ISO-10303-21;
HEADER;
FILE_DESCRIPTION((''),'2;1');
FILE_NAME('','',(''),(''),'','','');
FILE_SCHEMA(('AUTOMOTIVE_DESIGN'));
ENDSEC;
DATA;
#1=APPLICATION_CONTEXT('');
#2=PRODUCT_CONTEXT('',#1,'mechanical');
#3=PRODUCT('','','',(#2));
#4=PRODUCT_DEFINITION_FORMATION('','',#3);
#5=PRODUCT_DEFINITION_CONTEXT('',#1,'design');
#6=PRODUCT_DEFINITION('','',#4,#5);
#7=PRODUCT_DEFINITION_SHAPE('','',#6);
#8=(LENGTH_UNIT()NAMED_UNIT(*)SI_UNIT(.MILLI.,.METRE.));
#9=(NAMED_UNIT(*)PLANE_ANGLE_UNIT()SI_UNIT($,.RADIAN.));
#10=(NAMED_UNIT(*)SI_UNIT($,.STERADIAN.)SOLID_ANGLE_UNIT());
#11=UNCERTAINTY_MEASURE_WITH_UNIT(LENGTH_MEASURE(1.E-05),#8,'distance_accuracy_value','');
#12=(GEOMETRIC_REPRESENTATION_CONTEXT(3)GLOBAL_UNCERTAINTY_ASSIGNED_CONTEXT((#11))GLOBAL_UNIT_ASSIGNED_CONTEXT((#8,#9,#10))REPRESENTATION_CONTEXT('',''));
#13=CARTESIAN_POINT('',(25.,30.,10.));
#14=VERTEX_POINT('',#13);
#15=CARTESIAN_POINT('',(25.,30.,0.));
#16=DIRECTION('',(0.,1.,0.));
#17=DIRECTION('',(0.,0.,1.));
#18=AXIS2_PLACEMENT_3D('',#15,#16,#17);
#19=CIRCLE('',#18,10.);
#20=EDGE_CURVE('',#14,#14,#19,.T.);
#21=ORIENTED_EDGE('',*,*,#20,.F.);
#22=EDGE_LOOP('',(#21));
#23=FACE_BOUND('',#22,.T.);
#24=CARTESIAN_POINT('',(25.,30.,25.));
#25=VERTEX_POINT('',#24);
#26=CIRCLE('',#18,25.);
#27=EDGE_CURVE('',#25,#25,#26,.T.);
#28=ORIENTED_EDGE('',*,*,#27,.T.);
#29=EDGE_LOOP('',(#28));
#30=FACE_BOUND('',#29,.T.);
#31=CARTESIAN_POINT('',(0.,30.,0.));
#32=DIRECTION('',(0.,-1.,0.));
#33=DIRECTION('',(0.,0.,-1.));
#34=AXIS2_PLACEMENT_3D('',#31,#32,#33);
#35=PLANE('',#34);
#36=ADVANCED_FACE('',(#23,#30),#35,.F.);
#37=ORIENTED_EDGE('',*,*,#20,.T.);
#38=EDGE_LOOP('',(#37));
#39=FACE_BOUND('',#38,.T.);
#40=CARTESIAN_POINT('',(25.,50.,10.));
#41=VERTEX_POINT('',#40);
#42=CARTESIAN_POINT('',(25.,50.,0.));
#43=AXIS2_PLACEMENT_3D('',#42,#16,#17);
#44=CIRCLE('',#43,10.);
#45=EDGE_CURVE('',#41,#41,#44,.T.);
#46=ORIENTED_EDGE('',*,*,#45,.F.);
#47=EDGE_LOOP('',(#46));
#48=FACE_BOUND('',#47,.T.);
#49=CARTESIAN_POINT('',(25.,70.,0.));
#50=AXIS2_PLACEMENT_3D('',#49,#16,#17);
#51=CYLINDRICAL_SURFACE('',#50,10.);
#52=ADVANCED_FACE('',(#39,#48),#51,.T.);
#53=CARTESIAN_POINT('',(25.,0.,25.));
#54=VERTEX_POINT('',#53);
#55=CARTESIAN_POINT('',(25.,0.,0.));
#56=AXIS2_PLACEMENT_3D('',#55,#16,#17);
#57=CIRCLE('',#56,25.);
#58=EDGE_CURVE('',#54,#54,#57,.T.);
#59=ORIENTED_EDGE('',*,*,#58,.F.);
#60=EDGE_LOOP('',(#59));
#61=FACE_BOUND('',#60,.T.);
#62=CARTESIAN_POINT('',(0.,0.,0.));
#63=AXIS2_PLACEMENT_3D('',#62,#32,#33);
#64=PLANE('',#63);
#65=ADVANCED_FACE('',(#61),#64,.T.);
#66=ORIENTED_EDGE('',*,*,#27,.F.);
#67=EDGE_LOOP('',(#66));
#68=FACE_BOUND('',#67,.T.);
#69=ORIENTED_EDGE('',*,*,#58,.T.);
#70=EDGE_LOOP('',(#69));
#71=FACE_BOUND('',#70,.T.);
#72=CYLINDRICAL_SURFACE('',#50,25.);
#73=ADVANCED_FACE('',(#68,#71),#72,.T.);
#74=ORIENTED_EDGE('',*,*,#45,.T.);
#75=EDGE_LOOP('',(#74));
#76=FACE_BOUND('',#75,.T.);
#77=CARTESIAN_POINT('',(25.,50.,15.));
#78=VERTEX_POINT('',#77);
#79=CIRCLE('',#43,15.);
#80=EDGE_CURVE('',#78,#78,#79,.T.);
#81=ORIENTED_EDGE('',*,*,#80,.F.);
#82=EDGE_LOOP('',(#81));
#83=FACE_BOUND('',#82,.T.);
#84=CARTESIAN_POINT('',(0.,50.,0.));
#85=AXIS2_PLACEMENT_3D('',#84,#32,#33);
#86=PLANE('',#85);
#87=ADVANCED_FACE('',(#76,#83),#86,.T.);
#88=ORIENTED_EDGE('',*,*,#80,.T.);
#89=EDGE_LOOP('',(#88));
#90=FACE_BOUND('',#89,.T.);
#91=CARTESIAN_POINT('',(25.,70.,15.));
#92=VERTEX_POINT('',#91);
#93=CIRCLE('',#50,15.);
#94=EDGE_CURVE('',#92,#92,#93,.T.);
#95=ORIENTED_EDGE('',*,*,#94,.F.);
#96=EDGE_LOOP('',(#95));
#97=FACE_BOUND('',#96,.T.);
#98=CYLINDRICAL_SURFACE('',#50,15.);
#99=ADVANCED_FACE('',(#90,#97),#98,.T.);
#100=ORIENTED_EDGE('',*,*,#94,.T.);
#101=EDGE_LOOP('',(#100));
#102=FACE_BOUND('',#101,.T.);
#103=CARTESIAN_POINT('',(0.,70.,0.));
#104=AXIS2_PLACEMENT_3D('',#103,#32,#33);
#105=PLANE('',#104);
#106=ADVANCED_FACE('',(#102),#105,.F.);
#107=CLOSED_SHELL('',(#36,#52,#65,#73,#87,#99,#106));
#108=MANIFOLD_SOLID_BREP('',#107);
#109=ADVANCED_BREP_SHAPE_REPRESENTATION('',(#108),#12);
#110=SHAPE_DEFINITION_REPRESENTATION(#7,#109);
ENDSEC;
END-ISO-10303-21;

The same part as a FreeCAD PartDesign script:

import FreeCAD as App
import Part
import Sketcher

V = App.Vector
Q = App.Units.Quantity


def add_polygon(sketch, points):
    """Adds a closed chain of lines whose ends are joined by coincident constraints."""
    first, n = sketch.GeometryCount, len(points)
    for a, b in zip(points, points[1:] + points[:1]):
        sketch.addGeometry(Part.LineSegment(App.Vector(*a, 0), App.Vector(*b, 0)), False)
    for i in range(n):
        sketch.addConstraint(Sketcher.Constraint("Coincident", first + i, 2, first + (i + 1) % n, 1))

doc = App.newDocument("Part")
body = doc.addObject("PartDesign::Body", "Body")

sketch1 = doc.addObject("Sketcher::SketchObject", "Sketch")
body.addObject(sketch1)
sketch1.AttachmentSupport = (doc.XY_Plane, [""])
sketch1.MapMode = "FlatFace"
add_polygon(sketch1, [(0, 0), (25, 0), (25, 70), (10, 70), (10, 50), (15, 50), (15, 30), (0, 30)])
sketch1.addGeometry(Part.LineSegment(V(25, 70, 0), V(25, 0, 0)), True)
sketch1.addConstraint(Sketcher.Constraint("Horizontal", 0))
sketch1.addConstraint(Sketcher.Constraint("Vertical", 1))
sketch1.addConstraint(Sketcher.Constraint("Horizontal", 2))
sketch1.addConstraint(Sketcher.Constraint("Vertical", 3))
sketch1.addConstraint(Sketcher.Constraint("Horizontal", 4))
sketch1.addConstraint(Sketcher.Constraint("Vertical", 5))
sketch1.addConstraint(Sketcher.Constraint("Horizontal", 6))
sketch1.addConstraint(Sketcher.Constraint("Vertical", 7))
sketch1.addConstraint(Sketcher.Constraint("Vertical", 8))
sketch1.addConstraint(Sketcher.Constraint("Coincident", 7, 2, -1, 1))
sketch1.addConstraint(Sketcher.Constraint("Coincident", 8, 1, 1, 2))
sketch1.addConstraint(Sketcher.Constraint("PointOnObject", 8, 2, -1))
sketch1.addConstraint(Sketcher.Constraint("Equal", 2, 6))
sketch1.addConstraint(Sketcher.Constraint("Equal", 3, 5))
sketch1.addConstraint(Sketcher.Constraint("DistanceX", 0, 1, 0, 2, Q("25 mm")))
sketch1.addConstraint(Sketcher.Constraint("DistanceX", 2, 2, 2, 1, Q("15 mm")))
sketch1.addConstraint(Sketcher.Constraint("DistanceY", 1, 1, 1, 2, Q("70 mm")))
sketch1.addConstraint(Sketcher.Constraint("DistanceY", 3, 2, 3, 1, Q("20 mm")))
revolution = doc.addObject("PartDesign::Revolution", "Revolution")
body.addObject(revolution)
revolution.Profile = sketch1
revolution.ReferenceAxis = (sketch1, ["Axis0"])
revolution.Angle = 360

doc.recompute()
